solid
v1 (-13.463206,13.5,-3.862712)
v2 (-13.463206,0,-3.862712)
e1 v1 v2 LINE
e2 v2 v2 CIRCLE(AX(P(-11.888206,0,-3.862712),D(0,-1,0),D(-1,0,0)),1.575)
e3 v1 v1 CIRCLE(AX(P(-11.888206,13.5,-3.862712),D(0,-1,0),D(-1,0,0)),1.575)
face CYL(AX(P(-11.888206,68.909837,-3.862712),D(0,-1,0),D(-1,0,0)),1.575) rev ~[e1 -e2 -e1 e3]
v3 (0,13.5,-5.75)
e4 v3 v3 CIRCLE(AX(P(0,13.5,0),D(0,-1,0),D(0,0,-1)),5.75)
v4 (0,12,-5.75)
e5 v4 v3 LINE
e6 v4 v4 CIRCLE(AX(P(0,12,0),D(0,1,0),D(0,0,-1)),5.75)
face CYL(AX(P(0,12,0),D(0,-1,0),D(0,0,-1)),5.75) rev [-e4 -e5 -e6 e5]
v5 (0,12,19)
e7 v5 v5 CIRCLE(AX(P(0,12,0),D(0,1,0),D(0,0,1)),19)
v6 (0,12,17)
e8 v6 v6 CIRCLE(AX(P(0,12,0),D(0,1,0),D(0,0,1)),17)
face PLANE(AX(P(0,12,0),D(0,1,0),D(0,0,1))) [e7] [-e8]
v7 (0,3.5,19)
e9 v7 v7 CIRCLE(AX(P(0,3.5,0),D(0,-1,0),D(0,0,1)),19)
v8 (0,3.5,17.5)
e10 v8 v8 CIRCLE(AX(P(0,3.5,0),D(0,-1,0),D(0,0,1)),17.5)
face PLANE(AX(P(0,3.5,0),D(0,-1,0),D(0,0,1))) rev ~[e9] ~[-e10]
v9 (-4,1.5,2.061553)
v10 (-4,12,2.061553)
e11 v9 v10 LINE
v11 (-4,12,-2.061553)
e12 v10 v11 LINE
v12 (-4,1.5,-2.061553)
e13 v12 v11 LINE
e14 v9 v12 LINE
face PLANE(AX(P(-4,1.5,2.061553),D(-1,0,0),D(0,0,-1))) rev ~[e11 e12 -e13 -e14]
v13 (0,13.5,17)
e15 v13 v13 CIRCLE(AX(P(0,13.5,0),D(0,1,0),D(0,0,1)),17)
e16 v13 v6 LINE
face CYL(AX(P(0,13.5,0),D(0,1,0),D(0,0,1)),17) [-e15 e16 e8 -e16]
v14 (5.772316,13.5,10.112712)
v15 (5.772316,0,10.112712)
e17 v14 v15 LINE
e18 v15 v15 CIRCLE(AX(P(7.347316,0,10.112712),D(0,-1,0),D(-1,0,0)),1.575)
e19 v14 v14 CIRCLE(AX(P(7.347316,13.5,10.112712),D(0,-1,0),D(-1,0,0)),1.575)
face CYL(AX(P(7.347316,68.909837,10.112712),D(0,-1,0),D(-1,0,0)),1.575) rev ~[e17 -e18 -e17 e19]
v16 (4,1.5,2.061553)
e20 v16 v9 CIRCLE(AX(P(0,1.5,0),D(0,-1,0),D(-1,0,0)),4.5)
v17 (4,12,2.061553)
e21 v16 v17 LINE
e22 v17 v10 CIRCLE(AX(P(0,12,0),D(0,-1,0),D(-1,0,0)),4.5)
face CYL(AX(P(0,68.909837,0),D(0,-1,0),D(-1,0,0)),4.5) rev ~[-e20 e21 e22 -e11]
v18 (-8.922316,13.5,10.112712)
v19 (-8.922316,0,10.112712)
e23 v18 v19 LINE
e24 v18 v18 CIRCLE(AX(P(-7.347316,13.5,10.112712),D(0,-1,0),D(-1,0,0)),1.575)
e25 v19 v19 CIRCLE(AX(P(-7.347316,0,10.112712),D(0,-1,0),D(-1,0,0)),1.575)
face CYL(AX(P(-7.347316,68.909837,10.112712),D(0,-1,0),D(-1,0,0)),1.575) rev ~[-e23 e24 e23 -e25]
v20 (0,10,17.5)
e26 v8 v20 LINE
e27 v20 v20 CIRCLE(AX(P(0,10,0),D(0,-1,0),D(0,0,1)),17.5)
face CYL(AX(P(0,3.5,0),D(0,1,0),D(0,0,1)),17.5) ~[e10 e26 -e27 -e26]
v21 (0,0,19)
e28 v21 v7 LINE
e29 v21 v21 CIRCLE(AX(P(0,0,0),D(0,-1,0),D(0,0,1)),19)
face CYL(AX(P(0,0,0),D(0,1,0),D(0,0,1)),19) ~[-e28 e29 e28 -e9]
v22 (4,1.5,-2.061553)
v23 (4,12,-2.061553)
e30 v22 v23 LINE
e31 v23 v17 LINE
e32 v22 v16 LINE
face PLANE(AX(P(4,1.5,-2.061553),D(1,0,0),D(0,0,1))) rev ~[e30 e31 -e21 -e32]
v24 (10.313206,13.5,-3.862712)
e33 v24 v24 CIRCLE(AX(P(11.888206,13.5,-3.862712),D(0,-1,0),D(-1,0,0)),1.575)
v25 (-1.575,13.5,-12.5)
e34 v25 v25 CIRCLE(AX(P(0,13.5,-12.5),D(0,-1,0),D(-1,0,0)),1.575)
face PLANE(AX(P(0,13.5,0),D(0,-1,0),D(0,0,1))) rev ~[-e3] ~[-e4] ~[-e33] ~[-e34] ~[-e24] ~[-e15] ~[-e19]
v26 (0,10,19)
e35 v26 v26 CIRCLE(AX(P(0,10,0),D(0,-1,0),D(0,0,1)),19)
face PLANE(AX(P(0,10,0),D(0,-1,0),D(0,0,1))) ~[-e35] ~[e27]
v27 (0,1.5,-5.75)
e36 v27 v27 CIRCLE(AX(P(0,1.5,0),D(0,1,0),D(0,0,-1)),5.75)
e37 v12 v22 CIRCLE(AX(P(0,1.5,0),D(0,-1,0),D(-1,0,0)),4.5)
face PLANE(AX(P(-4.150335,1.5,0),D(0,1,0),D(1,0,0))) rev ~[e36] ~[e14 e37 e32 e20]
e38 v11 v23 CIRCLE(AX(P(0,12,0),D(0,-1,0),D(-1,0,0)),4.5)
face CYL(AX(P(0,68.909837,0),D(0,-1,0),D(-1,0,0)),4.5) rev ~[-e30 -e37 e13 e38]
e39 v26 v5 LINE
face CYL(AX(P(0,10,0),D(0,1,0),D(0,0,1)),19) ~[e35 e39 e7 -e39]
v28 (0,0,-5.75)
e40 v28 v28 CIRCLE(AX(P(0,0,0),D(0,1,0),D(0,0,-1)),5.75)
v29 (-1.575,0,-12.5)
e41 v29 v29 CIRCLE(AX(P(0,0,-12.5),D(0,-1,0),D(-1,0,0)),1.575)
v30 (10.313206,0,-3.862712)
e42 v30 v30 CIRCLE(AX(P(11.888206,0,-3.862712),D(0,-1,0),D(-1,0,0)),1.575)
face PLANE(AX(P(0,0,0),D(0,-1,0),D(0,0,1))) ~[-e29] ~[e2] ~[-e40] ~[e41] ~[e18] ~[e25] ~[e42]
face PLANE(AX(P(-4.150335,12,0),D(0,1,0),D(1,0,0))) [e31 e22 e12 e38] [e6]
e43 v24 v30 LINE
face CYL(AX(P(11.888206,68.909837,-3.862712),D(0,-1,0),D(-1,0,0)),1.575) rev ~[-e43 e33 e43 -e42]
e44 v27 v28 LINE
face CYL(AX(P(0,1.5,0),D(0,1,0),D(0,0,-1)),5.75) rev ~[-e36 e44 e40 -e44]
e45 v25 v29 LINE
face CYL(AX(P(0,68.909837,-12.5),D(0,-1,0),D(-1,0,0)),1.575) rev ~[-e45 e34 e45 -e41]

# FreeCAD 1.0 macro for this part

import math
import FreeCAD as App
import Part
import Sketcher


def add_polygon(sketch, points):
    """Adds a closed chain of lines whose ends are joined by coincident constraints."""
    first, n = sketch.GeometryCount, len(points)
    for a, b in zip(points, points[1:] + points[:1]):
        sketch.addGeometry(Part.LineSegment(App.Vector(*a, 0), App.Vector(*b, 0)), False)
    for i in range(n):
        sketch.addConstraint(Sketcher.Constraint("Coincident", first + i, 2, first + (i + 1) % n, 1))

doc = App.newDocument("Part")
body = doc.addObject("PartDesign::Body", "Body")

sketch1 = doc.addObject("Sketcher::SketchObject", "Sketch")
body.addObject(sketch1)
sketch1.AttachmentSupport = (doc.XY_Plane, [""])
sketch1.MapMode = "FlatFace"
add_polygon(sketch1, [(0, 0), (19, 0), (19, 3.5), (17.5, 3.5), (17.5, 10), (19, 10), (19, 13.5), (0, 13.5)])
sketch1.addConstraint(Sketcher.Constraint("Horizontal", 0))
sketch1.addConstraint(Sketcher.Constraint("Vertical", 1))
sketch1.addConstraint(Sketcher.Constraint("Horizontal", 2))
sketch1.addConstraint(Sketcher.Constraint("Vertical", 3))
sketch1.addConstraint(Sketcher.Constraint("Horizontal", 4))
sketch1.addConstraint(Sketcher.Constraint("Vertical", 5))
sketch1.addConstraint(Sketcher.Constraint("Horizontal", 6))
sketch1.addConstraint(Sketcher.Constraint("Vertical", 7))
sketch1.addConstraint(Sketcher.Constraint("Coincident", 7, 2, -1, 1))
sketch1.addConstraint(Sketcher.Constraint("Vertical", 1, 2, 4, 2))
sketch1.addConstraint(Sketcher.Constraint("Equal", 1, 5))
sketch1.addConstraint(Sketcher.Constraint("DistanceX", 0, 1, 0, 2, 19.0))
sketch1.addConstraint(Sketcher.Constraint("DistanceX", 2, 2, 2, 1, 1.5))
sketch1.addConstraint(Sketcher.Constraint("DistanceY", 1, 1, 1, 2, 3.5))
sketch1.addConstraint(Sketcher.Constraint("DistanceY", 3, 1, 3, 2, 6.5))
revolution = doc.addObject("PartDesign::Revolution", "Revolution")
body.addObject(revolution)
revolution.Profile = sketch1
revolution.ReferenceAxis = (sketch1, ["V_Axis"])
revolution.Angle = 360

sketch2 = doc.addObject("Sketcher::SketchObject", "Sketch001")
body.addObject(sketch2)
sketch2.AttachmentSupport = (doc.XZ_Plane, [""])
sketch2.MapMode = "FlatFace"
sketch2.AttachmentOffset = App.Placement(App.Vector(0, 0, -13.5), App.Rotation())
sketch2.addGeometry(Part.Circle(App.Vector(0, 0, 0), App.Vector(0, 0, 1), 4.5), False)
sketch2.addConstraint(Sketcher.Constraint("Coincident", 0, 3, -1, 1))
sketch2.addConstraint(Sketcher.Constraint("Diameter", 0, 9.0))
doc.recompute()
hole = doc.addObject("PartDesign::Hole", "Hole")
body.addObject(hole)
hole.Profile = sketch2
hole.ThreadType = "None"
hole.Diameter = 9
hole.DepthType = "ThroughAll"
hole.Reversed = True

sketch3 = doc.addObject("Sketcher::SketchObject", "Sketch002")
body.addObject(sketch3)
sketch3.AttachmentSupport = (doc.XZ_Plane, [""])
sketch3.MapMode = "FlatFace"
sketch3.AttachmentOffset = App.Placement(App.Vector(0, 0, -13.5), App.Rotation())
sketch3.addGeometry(Part.Circle(App.Vector(0, 0, 0), App.Vector(0, 0, 1), 6), False)
sketch3.addConstraint(Sketcher.Constraint("Coincident", 0, 3, -1, 1))
sketch3.addConstraint(Sketcher.Constraint("Diameter", 0, 11.5))
pocket1 = doc.addObject("PartDesign::Pocket", "Pocket")
body.addObject(pocket1)
pocket1.Profile = sketch3
pocket1.Type = "TwoLengths"
pocket1.Length = 31.07075
pocket1.Length2 = 1.5

sketch4 = doc.addObject("Sketcher::SketchObject", "Sketch003")
body.addObject(sketch4)
sketch4.AttachmentSupport = (doc.XZ_Plane, [""])
sketch4.MapMode = "FlatFace"
sketch4.AttachmentOffset = App.Placement(App.Vector(0, 0, -1.5), App.Rotation())
sketch4.addGeometry(Part.Circle(App.Vector(0, 0, 0), App.Vector(0, 0, 1), 6), False)
sketch4.addConstraint(Sketcher.Constraint("Coincident", 0, 3, -1, 1))
sketch4.addConstraint(Sketcher.Constraint("Diameter", 0, 11.5))
pocket2 = doc.addObject("PartDesign::Pocket", "Pocket001")
body.addObject(pocket2)
pocket2.Profile = sketch4
pocket2.Length = 1.5
pocket2.Reversed = True

sketch5 = doc.addObject("Sketcher::SketchObject", "Sketch004")
body.addObject(sketch5)
sketch5.AttachmentSupport = (doc.XZ_Plane, [""])
sketch5.MapMode = "FlatFace"
sketch5.AttachmentOffset = App.Placement(App.Vector(0, 0, -1.5), App.Rotation())
sketch5.addGeometry(Part.ArcOfCircle(Part.Circle(App.Vector(0, 0, 0), App.Vector(0, 0, 1), 4.5), math.radians(153), math.radians(207)), False)
sketch5.addGeometry(Part.LineSegment(App.Vector(-4, 2.1, 0), App.Vector(-4, -2.1, 0)), False)
sketch5.addGeometry(Part.LineSegment(App.Vector(4, -2.1, 0), App.Vector(4, 2.1, 0)), False)
sketch5.addGeometry(Part.ArcOfCircle(Part.Circle(App.Vector(0, 0, 0), App.Vector(0, 0, 1), 4.5), math.radians(0), math.radians(27)), False)
sketch5.addGeometry(Part.ArcOfCircle(Part.Circle(App.Vector(0, 0, 0), App.Vector(0, 0, 1), 4.5), math.radians(-27), math.radians(0)), False)
sketch5.addConstraint(Sketcher.Constraint("Coincident", 0, 1, 1, 1))
sketch5.addConstraint(Sketcher.Constraint("Coincident", 1, 2, 0, 2))
sketch5.addConstraint(Sketcher.Constraint("Coincident", 2, 2, 3, 2))
sketch5.addConstraint(Sketcher.Constraint("Tangent", 3, 1, 4, 2))
sketch5.addConstraint(Sketcher.Constraint("Coincident", 4, 1, 2, 1))
sketch5.addConstraint(Sketcher.Constraint("Vertical", 1))
sketch5.addConstraint(Sketcher.Constraint("Vertical", 2))
sketch5.addConstraint(Sketcher.Constraint("Coincident", 0, 3, -1, 1))
sketch5.addConstraint(Sketcher.Constraint("Coincident", 3, 3, -1, 1))
sketch5.addConstraint(Sketcher.Constraint("Equal", 0, 3))
sketch5.addConstraint(Sketcher.Constraint("Equal", 3, 4))
sketch5.addConstraint(Sketcher.Constraint("PointOnObject", 3, 1, -1))
sketch5.addConstraint(Sketcher.Constraint("Horizontal", 0, 1, 2, 2))
sketch5.addConstraint(Sketcher.Constraint("Radius", 0, 4.5))
sketch5.addConstraint(Sketcher.Constraint("DistanceX", 0, 1, -1, 1, 4.0))
pad1 = doc.addObject("PartDesign::Pad", "Pad")
body.addObject(pad1)
pad1.Profile = sketch5
pad1.Length = 10.5
pad1.Reversed = True

sketch6 = doc.addObject("Sketcher::SketchObject", "Sketch005")
body.addObject(sketch6)
sketch6.AttachmentSupport = (doc.XZ_Plane, [""])
sketch6.MapMode = "FlatFace"
sketch6.AttachmentOffset = App.Placement(App.Vector(0, 0, -13.5), App.Rotation())
sketch6.addGeometry(Part.Circle(App.Vector(-11.9, -3.9, 0), App.Vector(0, 0, 1), 1.6), False)
sketch6.addGeometry(Part.Circle(App.Vector(0, -12.5, 0), App.Vector(0, 0, 1), 1.6), False)
sketch6.addGeometry(Part.Circle(App.Vector(11.9, -3.9, 0), App.Vector(0, 0, 1), 1.6), False)
sketch6.addGeometry(Part.Circle(App.Vector(7.3, 10.1, 0), App.Vector(0, 0, 1), 1.6), False)
sketch6.addGeometry(Part.Circle(App.Vector(-7.3, 10.1, 0), App.Vector(0, 0, 1), 1.6), False)
sketch6.addConstraint(Sketcher.Constraint("Equal", 0, 1))
sketch6.addConstraint(Sketcher.Constraint("Equal", 1, 2))
sketch6.addConstraint(Sketcher.Constraint("Equal", 2, 3))
sketch6.addConstraint(Sketcher.Constraint("Equal", 3, 4))
sketch6.addConstraint(Sketcher.Constraint("Symmetric", 0, 3, 2, 3, -2))
sketch6.addConstraint(Sketcher.Constraint("Symmetric", 3, 3, 4, 3, -2))
sketch6.addConstraint(Sketcher.Constraint("PointOnObject", 1, 3, -2))
sketch6.addConstraint(Sketcher.Constraint("Diameter", 0, 3.15))
sketch6.addConstraint(Sketcher.Constraint("DistanceY", 1, 3, -1, 1, 12.5))
sketch6.addConstraint(Sketcher.Constraint("DistanceX", 3, 3, 2, 3, 4.540891))
sketch6.addConstraint(Sketcher.Constraint("DistanceX", 4, 3, 3, 3, 14.694631))
sketch6.addConstraint(Sketcher.Constraint("DistanceY", 0, 3, -1, 1, 3.862712))
sketch6.addConstraint(Sketcher.Constraint("DistanceY", -1, 1, 3, 3, 10.112712))
doc.recompute()
hole2 = doc.addObject("PartDesign::Hole", "Hole001")
body.addObject(hole2)
hole2.Profile = sketch6
hole2.ThreadType = "None"
hole2.Diameter = 3.15
hole2.DepthType = "ThroughAll"
hole2.Reversed = True

sketch7 = doc.addObject("Sketcher::SketchObject", "Sketch006")
body.addObject(sketch7)
sketch7.AttachmentSupport = (doc.XZ_Plane, [""])
sketch7.MapMode = "FlatFace"
sketch7.AttachmentOffset = App.Placement(App.Vector(0, 0, -13.5), App.Rotation())
sketch7.addGeometry(Part.Circle(App.Vector(0, 0, 0), App.Vector(0, 0, 1), 19), False)
sketch7.addGeometry(Part.Circle(App.Vector(0, 0, 0), App.Vector(0, 0, 1), 17), False)
sketch7.addConstraint(Sketcher.Constraint("Coincident", 0, 3, -1, 1))
sketch7.addConstraint(Sketcher.Constraint("Coincident", 1, 3, -1, 1))
sketch7.addConstraint(Sketcher.Constraint("Diameter", 0, 38.0))
sketch7.addConstraint(Sketcher.Constraint("Diameter", 1, 34.0))
pocket3 = doc.addObject("PartDesign::Pocket", "Pocket002")
body.addObject(pocket3)
pocket3.Profile = sketch7
pocket3.Length = 1.5
pocket3.Reversed = True

doc.recompute()
